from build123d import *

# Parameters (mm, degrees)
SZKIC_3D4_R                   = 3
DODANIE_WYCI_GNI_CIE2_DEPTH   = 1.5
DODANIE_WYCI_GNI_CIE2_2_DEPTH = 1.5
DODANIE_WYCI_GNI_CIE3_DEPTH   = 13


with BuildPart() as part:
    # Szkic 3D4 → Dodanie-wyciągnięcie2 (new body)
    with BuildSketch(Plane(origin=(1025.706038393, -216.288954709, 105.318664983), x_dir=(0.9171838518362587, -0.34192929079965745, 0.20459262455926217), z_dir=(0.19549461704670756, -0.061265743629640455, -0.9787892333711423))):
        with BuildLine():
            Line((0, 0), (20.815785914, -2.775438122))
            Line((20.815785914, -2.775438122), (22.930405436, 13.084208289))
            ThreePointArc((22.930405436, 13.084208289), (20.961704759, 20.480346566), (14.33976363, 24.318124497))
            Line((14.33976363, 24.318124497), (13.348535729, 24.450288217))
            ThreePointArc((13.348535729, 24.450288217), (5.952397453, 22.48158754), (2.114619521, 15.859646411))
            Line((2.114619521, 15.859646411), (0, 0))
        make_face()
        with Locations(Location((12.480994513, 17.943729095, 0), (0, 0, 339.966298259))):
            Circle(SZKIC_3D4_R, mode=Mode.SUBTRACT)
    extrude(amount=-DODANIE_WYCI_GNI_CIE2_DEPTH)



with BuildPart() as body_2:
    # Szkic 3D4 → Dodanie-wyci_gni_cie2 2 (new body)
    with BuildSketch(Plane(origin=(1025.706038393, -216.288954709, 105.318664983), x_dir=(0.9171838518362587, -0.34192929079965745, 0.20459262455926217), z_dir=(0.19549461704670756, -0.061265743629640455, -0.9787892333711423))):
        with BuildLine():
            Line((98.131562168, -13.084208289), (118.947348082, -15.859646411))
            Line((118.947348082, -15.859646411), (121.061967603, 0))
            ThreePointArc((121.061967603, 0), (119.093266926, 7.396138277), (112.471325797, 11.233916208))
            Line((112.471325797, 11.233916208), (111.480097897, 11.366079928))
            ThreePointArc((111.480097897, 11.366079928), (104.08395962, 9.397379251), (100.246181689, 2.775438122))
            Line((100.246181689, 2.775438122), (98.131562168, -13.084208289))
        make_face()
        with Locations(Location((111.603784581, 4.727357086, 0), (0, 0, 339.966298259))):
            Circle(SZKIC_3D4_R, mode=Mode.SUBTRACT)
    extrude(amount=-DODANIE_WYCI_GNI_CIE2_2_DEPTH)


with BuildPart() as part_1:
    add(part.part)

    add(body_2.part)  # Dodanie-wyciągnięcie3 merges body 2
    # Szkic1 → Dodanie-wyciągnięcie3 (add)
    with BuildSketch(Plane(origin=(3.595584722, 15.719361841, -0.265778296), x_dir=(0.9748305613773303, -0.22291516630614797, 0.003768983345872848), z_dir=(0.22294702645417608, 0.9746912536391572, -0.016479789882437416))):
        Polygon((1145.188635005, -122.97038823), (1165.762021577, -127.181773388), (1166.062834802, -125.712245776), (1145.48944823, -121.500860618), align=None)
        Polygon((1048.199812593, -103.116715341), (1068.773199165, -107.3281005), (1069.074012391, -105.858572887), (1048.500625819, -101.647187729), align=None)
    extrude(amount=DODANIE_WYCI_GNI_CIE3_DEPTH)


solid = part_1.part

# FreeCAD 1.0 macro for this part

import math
import FreeCAD as App
import Part
import Sketcher


def add_polygon(sketch, points):
    """Adds a closed chain of lines whose ends are joined by coincident constraints."""
    first, n = sketch.GeometryCount, len(points)
    for a, b in zip(points, points[1:] + points[:1]):
        sketch.addGeometry(Part.LineSegment(App.Vector(*a, 0), App.Vector(*b, 0)), False)
    for i in range(n):
        sketch.addConstraint(Sketcher.Constraint("Coincident", first + i, 2, first + (i + 1) % n, 1))

doc = App.newDocument("Part")
body = doc.addObject("PartDesign::Body", "Body")

# Sketch on an angled plane
sketch1 = doc.addObject("Sketcher::SketchObject", "Sketch")
body.addObject(sketch1)
sketch1.Placement = App.Placement(App.Vector(1025.706038, -216.288955, 105.318665), App.Rotation(App.Vector(0.917183852, -0.341929291, 0.204592625), App.Vector(-0.347211228, -0.937726436, -0.010653385), App.Vector(0.195494617, -0.061265744, -0.978789233), "ZXY"))
sketch1.addGeometry(Part.LineSegment(App.Vector(0, 0, 0), App.Vector(20.8, -2.8, 0)), False)
sketch1.addGeometry(Part.LineSegment(App.Vector(20.8, -2.8, 0), App.Vector(22.9, 13.1, 0)), False)
sketch1.addGeometry(Part.ArcOfCircle(Part.Circle(App.Vector(13, 14.4, 0), App.Vector(0, 0, 1), 10), math.radians(-8), math.radians(82)), False)
sketch1.addGeometry(Part.LineSegment(App.Vector(14.3, 24.3, 0), App.Vector(13.3, 24.5, 0)), False)
sketch1.addGeometry(Part.ArcOfCircle(Part.Circle(App.Vector(12, 14.5, 0), App.Vector(0, 0, 1), 10), math.radians(82), math.radians(172)), False)
sketch1.addGeometry(Part.LineSegment(App.Vector(2.1, 15.9, 0), App.Vector(0, 0, 0)), False)
sketch1.addGeometry(Part.Circle(App.Vector(12.5, 17.9, 0), App.Vector(0, 0, 1), 3), False)
sketch1.addConstraint(Sketcher.Constraint("Coincident", 0, 2, 1, 1))
sketch1.addConstraint(Sketcher.Constraint("Tangent", 1, 2, 2, 1))
sketch1.addConstraint(Sketcher.Constraint("Tangent", 2, 2, 3, 1))
sketch1.addConstraint(Sketcher.Constraint("Tangent", 3, 2, 4, 1))
sketch1.addConstraint(Sketcher.Constraint("Tangent", 4, 2, 5, 1))
sketch1.addConstraint(Sketcher.Constraint("Coincident", 5, 2, 0, 1))
sketch1.addConstraint(Sketcher.Constraint("Coincident", 5, 2, -1, 1))
sketch1.addConstraint(Sketcher.Constraint("Equal", 2, 4))
sketch1.addConstraint(Sketcher.Constraint("Perpendicular", 0, 1))
sketch1.addConstraint(Sketcher.Constraint("Perpendicular", 1, 3))
sketch1.addConstraint(Sketcher.Constraint("Perpendicular", 3, 5))
sketch1.addConstraint(Sketcher.Constraint("Diameter", 6, 6.0))
sketch1.addConstraint(Sketcher.Constraint("Radius", 2, 10.0))
sketch1.addConstraint(Sketcher.Constraint("Distance", 0, 21.0))
sketch1.addConstraint(Sketcher.Constraint("Distance", 1, 16.0))
sketch1.addConstraint(Sketcher.Constraint("DistanceX", -1, 1, 4, 3, 12.026899))
sketch1.addConstraint(Sketcher.Constraint("DistanceY", -1, 1, 6, 3, 17.943729))
sketch1.addConstraint(Sketcher.Constraint("DistanceX", 6, 3, 2, 3, 0.537132))
pad1 = doc.addObject("PartDesign::Pad", "Pad")
body.addObject(pad1)
pad1.Profile = sketch1
pad1.Length = 1.5
pad1.Reversed = True
body2 = doc.addObject("PartDesign::Body", "Body001")

# Sketch on an angled plane
sketch2 = doc.addObject("Sketcher::SketchObject", "Sketch001")
body2.addObject(sketch2)
sketch2.Placement = App.Placement(App.Vector(1025.706038, -216.288955, 105.318665), App.Rotation(App.Vector(0.917183852, -0.341929291, 0.204592625), App.Vector(-0.347211228, -0.937726436, -0.010653385), App.Vector(0.195494617, -0.061265744, -0.978789233), "ZXY"))
sketch2.addGeometry(Part.LineSegment(App.Vector(98.1, -13.1, 0), App.Vector(118.9, -15.9, 0)), False)
sketch2.addGeometry(Part.LineSegment(App.Vector(118.9, -15.9, 0), App.Vector(121.1, 0, 0)), False)
sketch2.addGeometry(Part.ArcOfCircle(Part.Circle(App.Vector(111.1, 1.3, 0), App.Vector(0, 0, 1), 10), math.radians(-8), math.radians(82)), False)
sketch2.addGeometry(Part.LineSegment(App.Vector(112.5, 11.2, 0), App.Vector(111.5, 11.4, 0)), False)
sketch2.addGeometry(Part.ArcOfCircle(Part.Circle(App.Vector(110.2, 1.5, 0), App.Vector(0, 0, 1), 10), math.radians(82), math.radians(172)), False)
sketch2.addGeometry(Part.LineSegment(App.Vector(100.2, 2.8, 0), App.Vector(98.1, -13.1, 0)), False)
sketch2.addGeometry(Part.Circle(App.Vector(111.6, 4.7, 0), App.Vector(0, 0, 1), 3), False)
sketch2.addConstraint(Sketcher.Constraint("Coincident", 0, 2, 1, 1))
sketch2.addConstraint(Sketcher.Constraint("Tangent", 1, 2, 2, 1))
sketch2.addConstraint(Sketcher.Constraint("Tangent", 2, 2, 3, 1))
sketch2.addConstraint(Sketcher.Constraint("Tangent", 3, 2, 4, 1))
sketch2.addConstraint(Sketcher.Constraint("Tangent", 4, 2, 5, 1))
sketch2.addConstraint(Sketcher.Constraint("Coincident", 5, 2, 0, 1))
sketch2.addConstraint(Sketcher.Constraint("Equal", 2, 4))
sketch2.addConstraint(Sketcher.Constraint("PointOnObject", 1, 2, -1))
sketch2.addConstraint(Sketcher.Constraint("Perpendicular", 0, 1))
sketch2.addConstraint(Sketcher.Constraint("Perpendicular", 1, 3))
sketch2.addConstraint(Sketcher.Constraint("Perpendicular", 3, 5))
sketch2.addConstraint(Sketcher.Constraint("Diameter", 6, 6.0))
sketch2.addConstraint(Sketcher.Constraint("Radius", 2, 10.0))
sketch2.addConstraint(Sketcher.Constraint("Distance", 0, 21.0))
sketch2.addConstraint(Sketcher.Constraint("Distance", 1, 16.0))
sketch2.addConstraint(Sketcher.Constraint("DistanceY", -1, 1, 4, 3, 1.453801))
sketch2.addConstraint(Sketcher.Constraint("DistanceX", -1, 1, 2, 3, 111.149689))
sketch2.addConstraint(Sketcher.Constraint("DistanceY", 2, 3, 6, 3, 3.40572))
sketch2.addConstraint(Sketcher.Constraint("DistanceX", 6, 3, 2, 2, 0.867541))
pad2 = doc.addObject("PartDesign::Pad", "Pad001")
body2.addObject(pad2)
pad2.Profile = sketch2
pad2.Length = 1.5
pad2.Reversed = True
body.AllowCompound = True
doc.recompute()

boolean = doc.addObject("PartDesign::Boolean", "Boolean")
body.addObject(boolean)
boolean.Type = "Fuse"
boolean.addObjects([body2])

# Sketch on an angled plane
sketch3 = doc.addObject("Sketcher::SketchObject", "Sketch002")
body.addObject(sketch3)
sketch3.Placement = App.Placement(App.Vector(3.595585, 15.719362, -0.265778), App.Rotation(App.Vector(0.974830561, -0.222915166, 0.003768983), App.Vector(0, -0.016905286, -0.999857095), App.Vector(0.222947026, 0.974691254, -0.01647979), "ZXY"))
add_polygon(sketch3, [(1145.2, -123), (1165.8, -127.2), (1166.1, -125.7), (1145.5, -121.5)])  # lines 0-3
add_polygon(sketch3, [(1048.2, -103.1), (1068.8, -107.3), (1069.1, -105.9), (1048.5, -101.6)])  # lines 4-7
sketch3.addConstraint(Sketcher.Constraint("Perpendicular", 0, 1))
sketch3.addConstraint(Sketcher.Constraint("Perpendicular", 1, 2))
sketch3.addConstraint(Sketcher.Constraint("Perpendicular", 2, 3))
sketch3.addConstraint(Sketcher.Constraint("Perpendicular", 3, 4))
sketch3.addConstraint(Sketcher.Constraint("Perpendicular", 4, 5))
sketch3.addConstraint(Sketcher.Constraint("Perpendicular", 5, 6))
sketch3.addConstraint(Sketcher.Constraint("Perpendicular", 6, 7))
sketch3.addConstraint(Sketcher.Constraint("Equal", 2, 4))
sketch3.addConstraint(Sketcher.Constraint("Equal", 3, 5))
sketch3.addConstraint(Sketcher.Constraint("Distance", 0, 21.0))
sketch3.addConstraint(Sketcher.Constraint("Distance", 1, 1.5))
sketch3.addConstraint(Sketcher.Constraint("DistanceX", -1, 1, 4, 2, 1068.773198))
sketch3.addConstraint(Sketcher.Constraint("DistanceY", 4, 2, -1, 1, 107.3281))
sketch3.addConstraint(Sketcher.Constraint("DistanceX", 3, 2, 1, 2, 20.8742))
sketch3.addConstraint(Sketcher.Constraint("DistanceY", 0, 2, 5, 2, 21.3232))
sketch3.addConstraint(Sketcher.Constraint("DistanceX", -1, 1, 0, 2, 1165.762021))
pad3 = doc.addObject("PartDesign::Pad", "Pad002")
body.addObject(pad3)
pad3.Profile = sketch3
pad3.Length = 13

doc.recompute()
